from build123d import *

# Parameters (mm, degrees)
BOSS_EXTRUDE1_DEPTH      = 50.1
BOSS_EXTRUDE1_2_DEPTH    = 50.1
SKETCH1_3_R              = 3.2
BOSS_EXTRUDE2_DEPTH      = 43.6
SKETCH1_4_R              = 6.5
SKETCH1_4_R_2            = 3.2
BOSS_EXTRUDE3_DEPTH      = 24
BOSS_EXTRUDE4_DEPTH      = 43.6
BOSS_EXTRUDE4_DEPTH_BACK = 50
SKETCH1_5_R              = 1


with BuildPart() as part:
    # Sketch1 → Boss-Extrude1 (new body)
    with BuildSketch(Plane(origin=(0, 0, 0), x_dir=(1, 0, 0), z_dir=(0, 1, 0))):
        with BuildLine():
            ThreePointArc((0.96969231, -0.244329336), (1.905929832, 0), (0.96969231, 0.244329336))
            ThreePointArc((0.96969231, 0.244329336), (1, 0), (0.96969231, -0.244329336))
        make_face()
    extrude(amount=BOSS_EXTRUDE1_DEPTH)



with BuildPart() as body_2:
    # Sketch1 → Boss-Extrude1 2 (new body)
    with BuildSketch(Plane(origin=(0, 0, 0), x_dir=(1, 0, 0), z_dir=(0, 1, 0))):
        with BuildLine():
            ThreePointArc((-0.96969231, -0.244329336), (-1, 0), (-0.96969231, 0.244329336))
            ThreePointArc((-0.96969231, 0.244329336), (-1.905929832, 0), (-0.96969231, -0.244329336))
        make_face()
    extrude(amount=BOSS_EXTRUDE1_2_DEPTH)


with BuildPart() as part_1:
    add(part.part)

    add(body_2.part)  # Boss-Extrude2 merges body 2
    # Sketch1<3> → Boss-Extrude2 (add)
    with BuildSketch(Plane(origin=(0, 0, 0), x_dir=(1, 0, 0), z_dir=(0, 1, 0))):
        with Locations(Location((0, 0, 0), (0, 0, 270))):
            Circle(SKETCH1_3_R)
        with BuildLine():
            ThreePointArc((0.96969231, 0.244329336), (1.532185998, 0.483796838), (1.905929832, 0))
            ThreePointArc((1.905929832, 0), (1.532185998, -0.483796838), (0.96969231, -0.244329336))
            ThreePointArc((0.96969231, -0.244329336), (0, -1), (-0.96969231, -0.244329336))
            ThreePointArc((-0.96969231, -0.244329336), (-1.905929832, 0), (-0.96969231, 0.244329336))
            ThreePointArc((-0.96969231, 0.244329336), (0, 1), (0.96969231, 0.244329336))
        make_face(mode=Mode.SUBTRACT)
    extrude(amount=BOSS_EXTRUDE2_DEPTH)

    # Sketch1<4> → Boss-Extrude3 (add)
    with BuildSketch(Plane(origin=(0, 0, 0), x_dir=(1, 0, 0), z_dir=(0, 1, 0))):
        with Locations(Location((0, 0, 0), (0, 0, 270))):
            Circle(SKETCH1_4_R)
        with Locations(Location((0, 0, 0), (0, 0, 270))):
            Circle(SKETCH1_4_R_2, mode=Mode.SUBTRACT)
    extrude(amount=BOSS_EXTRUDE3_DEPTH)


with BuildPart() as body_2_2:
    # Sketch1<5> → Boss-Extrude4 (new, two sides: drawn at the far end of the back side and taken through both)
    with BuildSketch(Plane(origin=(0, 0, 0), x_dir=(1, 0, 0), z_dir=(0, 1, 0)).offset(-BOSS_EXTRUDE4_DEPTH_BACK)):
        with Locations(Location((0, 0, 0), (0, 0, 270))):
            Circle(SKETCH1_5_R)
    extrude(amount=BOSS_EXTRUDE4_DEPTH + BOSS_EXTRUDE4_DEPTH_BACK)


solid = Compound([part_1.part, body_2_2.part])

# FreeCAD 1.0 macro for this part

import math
import FreeCAD as App
import Part
import Sketcher
from FreeCAD import Vector

doc = App.newDocument("Part")
body = doc.addObject("PartDesign::Body", "Body")

# Sketch on XZ plane
sketch1 = body.newObject("Sketcher::SketchObject", "Sketch")
sketch1.AttachmentSupport = (doc.getObject("XZ_Plane"), [""])
sketch1.MapMode = "FlatFace"
sketch1.addGeometry([
    Part.ArcOfCircle(Part.Circle(Vector(1.41, 0, 0), Vector(0, 0, 1), 0.5), math.radians(-151), math.radians(151)),
    Part.ArcOfCircle(Part.Circle(Vector(0, 0, 0), Vector(0, 0, 1), 1), math.radians(-14), math.radians(14)),
], False)
sketch1.addConstraint([
    Sketcher.Constraint("Coincident", 0, 1, 1, 1),
    Sketcher.Constraint("Coincident", 1, 2, 0, 2),
    Sketcher.Constraint("Coincident", 1, 3, -1, 1),
    Sketcher.Constraint("PointOnObject", 0, 3, -1),
    Sketcher.Constraint("Radius", 1, 1.0),
    Sketcher.Constraint("Radius", 0, 0.5),
    Sketcher.Constraint("DistanceX", -1, 1, 0, 3, 1.40593),
])
pad1 = body.newObject("PartDesign::Pad", "Pad")
pad1.Profile = sketch1
pad1.Length = 50.1
pad1.Reversed = True
body2 = doc.addObject("PartDesign::Body", "Body001")

# Sketch on XZ plane
sketch2 = body2.newObject("Sketcher::SketchObject", "Sketch001")
sketch2.AttachmentSupport = (doc.getObject("XZ_Plane001"), [""])
sketch2.MapMode = "FlatFace"
sketch2.addGeometry([
    Part.ArcOfCircle(Part.Circle(Vector(0, 0, 0), Vector(0, 0, 1), 1), math.radians(166), math.radians(194)),
    Part.ArcOfCircle(Part.Circle(Vector(-1.41, 0, 0), Vector(0, 0, 1), 0.5), math.radians(29), math.radians(331)),
], False)
sketch2.addConstraint([
    Sketcher.Constraint("Coincident", 0, 1, 1, 1),
    Sketcher.Constraint("Coincident", 1, 2, 0, 2),
    Sketcher.Constraint("Coincident", 0, 3, -1, 1),
    Sketcher.Constraint("PointOnObject", 1, 3, -1),
    Sketcher.Constraint("Radius", 0, 1.0),
    Sketcher.Constraint("Radius", 1, 0.5),
    Sketcher.Constraint("DistanceX", 1, 3, -1, 1, 1.40593),
])
pad2 = body2.newObject("PartDesign::Pad", "Pad001")
pad2.Profile = sketch2
pad2.Length = 50.1
pad2.Reversed = True
body.AllowCompound = True
doc.recompute()

boolean = body.newObject("PartDesign::Boolean", "Boolean")
boolean.Type = "Fuse"
boolean.addObjects([body2])

# Sketch on XZ plane
sketch3 = body.newObject("Sketcher::SketchObject", "Sketch002")
sketch3.AttachmentSupport = (doc.getObject("XZ_Plane"), [""])
sketch3.MapMode = "FlatFace"
sketch3.addGeometry([
    Part.Circle(Vector(0, 0, 0), Vector(0, 0, 1), 3.2),  # 0
    Part.ArcOfCircle(Part.Circle(Vector(0, 0, 0), Vector(0, 0, 1), 1), math.radians(-166), math.radians(-14)),  # 1
    Part.ArcOfCircle(Part.Circle(Vector(1.41, 0, 0), Vector(0, 0, 1), 0.5), math.radians(-151), math.radians(0)),  # 2
    Part.ArcOfCircle(Part.Circle(Vector(1.41, 0, 0), Vector(0, 0, 1), 0.5), math.radians(0), math.radians(151)),  # 3
    Part.ArcOfCircle(Part.Circle(Vector(0, 0, 0), Vector(0, 0, 1), 1), math.radians(14), math.radians(166)),  # 4
    Part.ArcOfCircle(Part.Circle(Vector(-1.41, 0, 0), Vector(0, 0, 1), 0.5), math.radians(29), math.radians(331)),  # 5
], False)
sketch3.addConstraint([
    Sketcher.Constraint("Coincident", 1, 2, 2, 1),
    Sketcher.Constraint("Tangent", 2, 2, 3, 1),
    Sketcher.Constraint("Coincident", 3, 2, 4, 1),
    Sketcher.Constraint("Coincident", 4, 2, 5, 1),
    Sketcher.Constraint("Coincident", 5, 2, 1, 1),
    Sketcher.Constraint("Coincident", 0, 3, -1, 1),
    Sketcher.Constraint("Coincident", 1, 3, -1, 1),
    Sketcher.Constraint("Coincident", 4, 3, -1, 1),
    Sketcher.Constraint("Equal", 2, 3),
    Sketcher.Constraint("Equal", 1, 4),
    Sketcher.Constraint("Equal", 3, 5),
    Sketcher.Constraint("Symmetric", 2, 3, 5, 3, -1, 1),
    Sketcher.Constraint("PointOnObject", 2, 3, -1),
    Sketcher.Constraint("PointOnObject", 2, 2, -1),
    Sketcher.Constraint("Radius", 1, 1.0),
    Sketcher.Constraint("Diameter", 0, 6.4),
    Sketcher.Constraint("Radius", 2, 0.5),
    Sketcher.Constraint("DistanceX", -1, 1, 2, 3, 1.40593),
])
pad3 = body.newObject("PartDesign::Pad", "Pad002")
pad3.Profile = sketch3
pad3.Length = 43.6
pad3.Reversed = True

# Sketch on XZ plane
sketch4 = body.newObject("Sketcher::SketchObject", "Sketch003")
sketch4.AttachmentSupport = (doc.getObject("XZ_Plane"), [""])
sketch4.MapMode = "FlatFace"
sketch4.addGeometry([
    Part.Circle(Vector(0, 0, 0), Vector(0, 0, 1), 6.5),
    Part.Circle(Vector(0, 0, 0), Vector(0, 0, 1), 3.2),
], False)
sketch4.addConstraint([
    Sketcher.Constraint("Coincident", 0, 3, -1, 1),
    Sketcher.Constraint("Coincident", 1, 3, -1, 1),
    Sketcher.Constraint("Diameter", 0, 13.0),
    Sketcher.Constraint("Diameter", 1, 6.4),
])
pad4 = body.newObject("PartDesign::Pad", "Pad003")
pad4.Profile = sketch4
pad4.Length = 24
pad4.Reversed = True
body3 = doc.addObject("PartDesign::Body", "Body002")

# Sketch on XZ plane
sketch5 = body3.newObject("Sketcher::SketchObject", "Sketch004")
sketch5.AttachmentSupport = (doc.getObject("XZ_Plane002"), [""])
sketch5.MapMode = "FlatFace"
sketch5.addGeometry(Part.Circle(Vector(0, 0, 0), Vector(0, 0, 1), 1), False)
sketch5.addConstraint([
    Sketcher.Constraint("Coincident", 0, 3, -1, 1),
    Sketcher.Constraint("Diameter", 0, 2.0),
])
pad5 = body3.newObject("PartDesign::Pad", "Pad004")
pad5.Profile = sketch5
pad5.Type = "TwoLengths"
pad5.Length = 43.6
pad5.Length2 = 50
pad5.Reversed = True

doc.recompute()
